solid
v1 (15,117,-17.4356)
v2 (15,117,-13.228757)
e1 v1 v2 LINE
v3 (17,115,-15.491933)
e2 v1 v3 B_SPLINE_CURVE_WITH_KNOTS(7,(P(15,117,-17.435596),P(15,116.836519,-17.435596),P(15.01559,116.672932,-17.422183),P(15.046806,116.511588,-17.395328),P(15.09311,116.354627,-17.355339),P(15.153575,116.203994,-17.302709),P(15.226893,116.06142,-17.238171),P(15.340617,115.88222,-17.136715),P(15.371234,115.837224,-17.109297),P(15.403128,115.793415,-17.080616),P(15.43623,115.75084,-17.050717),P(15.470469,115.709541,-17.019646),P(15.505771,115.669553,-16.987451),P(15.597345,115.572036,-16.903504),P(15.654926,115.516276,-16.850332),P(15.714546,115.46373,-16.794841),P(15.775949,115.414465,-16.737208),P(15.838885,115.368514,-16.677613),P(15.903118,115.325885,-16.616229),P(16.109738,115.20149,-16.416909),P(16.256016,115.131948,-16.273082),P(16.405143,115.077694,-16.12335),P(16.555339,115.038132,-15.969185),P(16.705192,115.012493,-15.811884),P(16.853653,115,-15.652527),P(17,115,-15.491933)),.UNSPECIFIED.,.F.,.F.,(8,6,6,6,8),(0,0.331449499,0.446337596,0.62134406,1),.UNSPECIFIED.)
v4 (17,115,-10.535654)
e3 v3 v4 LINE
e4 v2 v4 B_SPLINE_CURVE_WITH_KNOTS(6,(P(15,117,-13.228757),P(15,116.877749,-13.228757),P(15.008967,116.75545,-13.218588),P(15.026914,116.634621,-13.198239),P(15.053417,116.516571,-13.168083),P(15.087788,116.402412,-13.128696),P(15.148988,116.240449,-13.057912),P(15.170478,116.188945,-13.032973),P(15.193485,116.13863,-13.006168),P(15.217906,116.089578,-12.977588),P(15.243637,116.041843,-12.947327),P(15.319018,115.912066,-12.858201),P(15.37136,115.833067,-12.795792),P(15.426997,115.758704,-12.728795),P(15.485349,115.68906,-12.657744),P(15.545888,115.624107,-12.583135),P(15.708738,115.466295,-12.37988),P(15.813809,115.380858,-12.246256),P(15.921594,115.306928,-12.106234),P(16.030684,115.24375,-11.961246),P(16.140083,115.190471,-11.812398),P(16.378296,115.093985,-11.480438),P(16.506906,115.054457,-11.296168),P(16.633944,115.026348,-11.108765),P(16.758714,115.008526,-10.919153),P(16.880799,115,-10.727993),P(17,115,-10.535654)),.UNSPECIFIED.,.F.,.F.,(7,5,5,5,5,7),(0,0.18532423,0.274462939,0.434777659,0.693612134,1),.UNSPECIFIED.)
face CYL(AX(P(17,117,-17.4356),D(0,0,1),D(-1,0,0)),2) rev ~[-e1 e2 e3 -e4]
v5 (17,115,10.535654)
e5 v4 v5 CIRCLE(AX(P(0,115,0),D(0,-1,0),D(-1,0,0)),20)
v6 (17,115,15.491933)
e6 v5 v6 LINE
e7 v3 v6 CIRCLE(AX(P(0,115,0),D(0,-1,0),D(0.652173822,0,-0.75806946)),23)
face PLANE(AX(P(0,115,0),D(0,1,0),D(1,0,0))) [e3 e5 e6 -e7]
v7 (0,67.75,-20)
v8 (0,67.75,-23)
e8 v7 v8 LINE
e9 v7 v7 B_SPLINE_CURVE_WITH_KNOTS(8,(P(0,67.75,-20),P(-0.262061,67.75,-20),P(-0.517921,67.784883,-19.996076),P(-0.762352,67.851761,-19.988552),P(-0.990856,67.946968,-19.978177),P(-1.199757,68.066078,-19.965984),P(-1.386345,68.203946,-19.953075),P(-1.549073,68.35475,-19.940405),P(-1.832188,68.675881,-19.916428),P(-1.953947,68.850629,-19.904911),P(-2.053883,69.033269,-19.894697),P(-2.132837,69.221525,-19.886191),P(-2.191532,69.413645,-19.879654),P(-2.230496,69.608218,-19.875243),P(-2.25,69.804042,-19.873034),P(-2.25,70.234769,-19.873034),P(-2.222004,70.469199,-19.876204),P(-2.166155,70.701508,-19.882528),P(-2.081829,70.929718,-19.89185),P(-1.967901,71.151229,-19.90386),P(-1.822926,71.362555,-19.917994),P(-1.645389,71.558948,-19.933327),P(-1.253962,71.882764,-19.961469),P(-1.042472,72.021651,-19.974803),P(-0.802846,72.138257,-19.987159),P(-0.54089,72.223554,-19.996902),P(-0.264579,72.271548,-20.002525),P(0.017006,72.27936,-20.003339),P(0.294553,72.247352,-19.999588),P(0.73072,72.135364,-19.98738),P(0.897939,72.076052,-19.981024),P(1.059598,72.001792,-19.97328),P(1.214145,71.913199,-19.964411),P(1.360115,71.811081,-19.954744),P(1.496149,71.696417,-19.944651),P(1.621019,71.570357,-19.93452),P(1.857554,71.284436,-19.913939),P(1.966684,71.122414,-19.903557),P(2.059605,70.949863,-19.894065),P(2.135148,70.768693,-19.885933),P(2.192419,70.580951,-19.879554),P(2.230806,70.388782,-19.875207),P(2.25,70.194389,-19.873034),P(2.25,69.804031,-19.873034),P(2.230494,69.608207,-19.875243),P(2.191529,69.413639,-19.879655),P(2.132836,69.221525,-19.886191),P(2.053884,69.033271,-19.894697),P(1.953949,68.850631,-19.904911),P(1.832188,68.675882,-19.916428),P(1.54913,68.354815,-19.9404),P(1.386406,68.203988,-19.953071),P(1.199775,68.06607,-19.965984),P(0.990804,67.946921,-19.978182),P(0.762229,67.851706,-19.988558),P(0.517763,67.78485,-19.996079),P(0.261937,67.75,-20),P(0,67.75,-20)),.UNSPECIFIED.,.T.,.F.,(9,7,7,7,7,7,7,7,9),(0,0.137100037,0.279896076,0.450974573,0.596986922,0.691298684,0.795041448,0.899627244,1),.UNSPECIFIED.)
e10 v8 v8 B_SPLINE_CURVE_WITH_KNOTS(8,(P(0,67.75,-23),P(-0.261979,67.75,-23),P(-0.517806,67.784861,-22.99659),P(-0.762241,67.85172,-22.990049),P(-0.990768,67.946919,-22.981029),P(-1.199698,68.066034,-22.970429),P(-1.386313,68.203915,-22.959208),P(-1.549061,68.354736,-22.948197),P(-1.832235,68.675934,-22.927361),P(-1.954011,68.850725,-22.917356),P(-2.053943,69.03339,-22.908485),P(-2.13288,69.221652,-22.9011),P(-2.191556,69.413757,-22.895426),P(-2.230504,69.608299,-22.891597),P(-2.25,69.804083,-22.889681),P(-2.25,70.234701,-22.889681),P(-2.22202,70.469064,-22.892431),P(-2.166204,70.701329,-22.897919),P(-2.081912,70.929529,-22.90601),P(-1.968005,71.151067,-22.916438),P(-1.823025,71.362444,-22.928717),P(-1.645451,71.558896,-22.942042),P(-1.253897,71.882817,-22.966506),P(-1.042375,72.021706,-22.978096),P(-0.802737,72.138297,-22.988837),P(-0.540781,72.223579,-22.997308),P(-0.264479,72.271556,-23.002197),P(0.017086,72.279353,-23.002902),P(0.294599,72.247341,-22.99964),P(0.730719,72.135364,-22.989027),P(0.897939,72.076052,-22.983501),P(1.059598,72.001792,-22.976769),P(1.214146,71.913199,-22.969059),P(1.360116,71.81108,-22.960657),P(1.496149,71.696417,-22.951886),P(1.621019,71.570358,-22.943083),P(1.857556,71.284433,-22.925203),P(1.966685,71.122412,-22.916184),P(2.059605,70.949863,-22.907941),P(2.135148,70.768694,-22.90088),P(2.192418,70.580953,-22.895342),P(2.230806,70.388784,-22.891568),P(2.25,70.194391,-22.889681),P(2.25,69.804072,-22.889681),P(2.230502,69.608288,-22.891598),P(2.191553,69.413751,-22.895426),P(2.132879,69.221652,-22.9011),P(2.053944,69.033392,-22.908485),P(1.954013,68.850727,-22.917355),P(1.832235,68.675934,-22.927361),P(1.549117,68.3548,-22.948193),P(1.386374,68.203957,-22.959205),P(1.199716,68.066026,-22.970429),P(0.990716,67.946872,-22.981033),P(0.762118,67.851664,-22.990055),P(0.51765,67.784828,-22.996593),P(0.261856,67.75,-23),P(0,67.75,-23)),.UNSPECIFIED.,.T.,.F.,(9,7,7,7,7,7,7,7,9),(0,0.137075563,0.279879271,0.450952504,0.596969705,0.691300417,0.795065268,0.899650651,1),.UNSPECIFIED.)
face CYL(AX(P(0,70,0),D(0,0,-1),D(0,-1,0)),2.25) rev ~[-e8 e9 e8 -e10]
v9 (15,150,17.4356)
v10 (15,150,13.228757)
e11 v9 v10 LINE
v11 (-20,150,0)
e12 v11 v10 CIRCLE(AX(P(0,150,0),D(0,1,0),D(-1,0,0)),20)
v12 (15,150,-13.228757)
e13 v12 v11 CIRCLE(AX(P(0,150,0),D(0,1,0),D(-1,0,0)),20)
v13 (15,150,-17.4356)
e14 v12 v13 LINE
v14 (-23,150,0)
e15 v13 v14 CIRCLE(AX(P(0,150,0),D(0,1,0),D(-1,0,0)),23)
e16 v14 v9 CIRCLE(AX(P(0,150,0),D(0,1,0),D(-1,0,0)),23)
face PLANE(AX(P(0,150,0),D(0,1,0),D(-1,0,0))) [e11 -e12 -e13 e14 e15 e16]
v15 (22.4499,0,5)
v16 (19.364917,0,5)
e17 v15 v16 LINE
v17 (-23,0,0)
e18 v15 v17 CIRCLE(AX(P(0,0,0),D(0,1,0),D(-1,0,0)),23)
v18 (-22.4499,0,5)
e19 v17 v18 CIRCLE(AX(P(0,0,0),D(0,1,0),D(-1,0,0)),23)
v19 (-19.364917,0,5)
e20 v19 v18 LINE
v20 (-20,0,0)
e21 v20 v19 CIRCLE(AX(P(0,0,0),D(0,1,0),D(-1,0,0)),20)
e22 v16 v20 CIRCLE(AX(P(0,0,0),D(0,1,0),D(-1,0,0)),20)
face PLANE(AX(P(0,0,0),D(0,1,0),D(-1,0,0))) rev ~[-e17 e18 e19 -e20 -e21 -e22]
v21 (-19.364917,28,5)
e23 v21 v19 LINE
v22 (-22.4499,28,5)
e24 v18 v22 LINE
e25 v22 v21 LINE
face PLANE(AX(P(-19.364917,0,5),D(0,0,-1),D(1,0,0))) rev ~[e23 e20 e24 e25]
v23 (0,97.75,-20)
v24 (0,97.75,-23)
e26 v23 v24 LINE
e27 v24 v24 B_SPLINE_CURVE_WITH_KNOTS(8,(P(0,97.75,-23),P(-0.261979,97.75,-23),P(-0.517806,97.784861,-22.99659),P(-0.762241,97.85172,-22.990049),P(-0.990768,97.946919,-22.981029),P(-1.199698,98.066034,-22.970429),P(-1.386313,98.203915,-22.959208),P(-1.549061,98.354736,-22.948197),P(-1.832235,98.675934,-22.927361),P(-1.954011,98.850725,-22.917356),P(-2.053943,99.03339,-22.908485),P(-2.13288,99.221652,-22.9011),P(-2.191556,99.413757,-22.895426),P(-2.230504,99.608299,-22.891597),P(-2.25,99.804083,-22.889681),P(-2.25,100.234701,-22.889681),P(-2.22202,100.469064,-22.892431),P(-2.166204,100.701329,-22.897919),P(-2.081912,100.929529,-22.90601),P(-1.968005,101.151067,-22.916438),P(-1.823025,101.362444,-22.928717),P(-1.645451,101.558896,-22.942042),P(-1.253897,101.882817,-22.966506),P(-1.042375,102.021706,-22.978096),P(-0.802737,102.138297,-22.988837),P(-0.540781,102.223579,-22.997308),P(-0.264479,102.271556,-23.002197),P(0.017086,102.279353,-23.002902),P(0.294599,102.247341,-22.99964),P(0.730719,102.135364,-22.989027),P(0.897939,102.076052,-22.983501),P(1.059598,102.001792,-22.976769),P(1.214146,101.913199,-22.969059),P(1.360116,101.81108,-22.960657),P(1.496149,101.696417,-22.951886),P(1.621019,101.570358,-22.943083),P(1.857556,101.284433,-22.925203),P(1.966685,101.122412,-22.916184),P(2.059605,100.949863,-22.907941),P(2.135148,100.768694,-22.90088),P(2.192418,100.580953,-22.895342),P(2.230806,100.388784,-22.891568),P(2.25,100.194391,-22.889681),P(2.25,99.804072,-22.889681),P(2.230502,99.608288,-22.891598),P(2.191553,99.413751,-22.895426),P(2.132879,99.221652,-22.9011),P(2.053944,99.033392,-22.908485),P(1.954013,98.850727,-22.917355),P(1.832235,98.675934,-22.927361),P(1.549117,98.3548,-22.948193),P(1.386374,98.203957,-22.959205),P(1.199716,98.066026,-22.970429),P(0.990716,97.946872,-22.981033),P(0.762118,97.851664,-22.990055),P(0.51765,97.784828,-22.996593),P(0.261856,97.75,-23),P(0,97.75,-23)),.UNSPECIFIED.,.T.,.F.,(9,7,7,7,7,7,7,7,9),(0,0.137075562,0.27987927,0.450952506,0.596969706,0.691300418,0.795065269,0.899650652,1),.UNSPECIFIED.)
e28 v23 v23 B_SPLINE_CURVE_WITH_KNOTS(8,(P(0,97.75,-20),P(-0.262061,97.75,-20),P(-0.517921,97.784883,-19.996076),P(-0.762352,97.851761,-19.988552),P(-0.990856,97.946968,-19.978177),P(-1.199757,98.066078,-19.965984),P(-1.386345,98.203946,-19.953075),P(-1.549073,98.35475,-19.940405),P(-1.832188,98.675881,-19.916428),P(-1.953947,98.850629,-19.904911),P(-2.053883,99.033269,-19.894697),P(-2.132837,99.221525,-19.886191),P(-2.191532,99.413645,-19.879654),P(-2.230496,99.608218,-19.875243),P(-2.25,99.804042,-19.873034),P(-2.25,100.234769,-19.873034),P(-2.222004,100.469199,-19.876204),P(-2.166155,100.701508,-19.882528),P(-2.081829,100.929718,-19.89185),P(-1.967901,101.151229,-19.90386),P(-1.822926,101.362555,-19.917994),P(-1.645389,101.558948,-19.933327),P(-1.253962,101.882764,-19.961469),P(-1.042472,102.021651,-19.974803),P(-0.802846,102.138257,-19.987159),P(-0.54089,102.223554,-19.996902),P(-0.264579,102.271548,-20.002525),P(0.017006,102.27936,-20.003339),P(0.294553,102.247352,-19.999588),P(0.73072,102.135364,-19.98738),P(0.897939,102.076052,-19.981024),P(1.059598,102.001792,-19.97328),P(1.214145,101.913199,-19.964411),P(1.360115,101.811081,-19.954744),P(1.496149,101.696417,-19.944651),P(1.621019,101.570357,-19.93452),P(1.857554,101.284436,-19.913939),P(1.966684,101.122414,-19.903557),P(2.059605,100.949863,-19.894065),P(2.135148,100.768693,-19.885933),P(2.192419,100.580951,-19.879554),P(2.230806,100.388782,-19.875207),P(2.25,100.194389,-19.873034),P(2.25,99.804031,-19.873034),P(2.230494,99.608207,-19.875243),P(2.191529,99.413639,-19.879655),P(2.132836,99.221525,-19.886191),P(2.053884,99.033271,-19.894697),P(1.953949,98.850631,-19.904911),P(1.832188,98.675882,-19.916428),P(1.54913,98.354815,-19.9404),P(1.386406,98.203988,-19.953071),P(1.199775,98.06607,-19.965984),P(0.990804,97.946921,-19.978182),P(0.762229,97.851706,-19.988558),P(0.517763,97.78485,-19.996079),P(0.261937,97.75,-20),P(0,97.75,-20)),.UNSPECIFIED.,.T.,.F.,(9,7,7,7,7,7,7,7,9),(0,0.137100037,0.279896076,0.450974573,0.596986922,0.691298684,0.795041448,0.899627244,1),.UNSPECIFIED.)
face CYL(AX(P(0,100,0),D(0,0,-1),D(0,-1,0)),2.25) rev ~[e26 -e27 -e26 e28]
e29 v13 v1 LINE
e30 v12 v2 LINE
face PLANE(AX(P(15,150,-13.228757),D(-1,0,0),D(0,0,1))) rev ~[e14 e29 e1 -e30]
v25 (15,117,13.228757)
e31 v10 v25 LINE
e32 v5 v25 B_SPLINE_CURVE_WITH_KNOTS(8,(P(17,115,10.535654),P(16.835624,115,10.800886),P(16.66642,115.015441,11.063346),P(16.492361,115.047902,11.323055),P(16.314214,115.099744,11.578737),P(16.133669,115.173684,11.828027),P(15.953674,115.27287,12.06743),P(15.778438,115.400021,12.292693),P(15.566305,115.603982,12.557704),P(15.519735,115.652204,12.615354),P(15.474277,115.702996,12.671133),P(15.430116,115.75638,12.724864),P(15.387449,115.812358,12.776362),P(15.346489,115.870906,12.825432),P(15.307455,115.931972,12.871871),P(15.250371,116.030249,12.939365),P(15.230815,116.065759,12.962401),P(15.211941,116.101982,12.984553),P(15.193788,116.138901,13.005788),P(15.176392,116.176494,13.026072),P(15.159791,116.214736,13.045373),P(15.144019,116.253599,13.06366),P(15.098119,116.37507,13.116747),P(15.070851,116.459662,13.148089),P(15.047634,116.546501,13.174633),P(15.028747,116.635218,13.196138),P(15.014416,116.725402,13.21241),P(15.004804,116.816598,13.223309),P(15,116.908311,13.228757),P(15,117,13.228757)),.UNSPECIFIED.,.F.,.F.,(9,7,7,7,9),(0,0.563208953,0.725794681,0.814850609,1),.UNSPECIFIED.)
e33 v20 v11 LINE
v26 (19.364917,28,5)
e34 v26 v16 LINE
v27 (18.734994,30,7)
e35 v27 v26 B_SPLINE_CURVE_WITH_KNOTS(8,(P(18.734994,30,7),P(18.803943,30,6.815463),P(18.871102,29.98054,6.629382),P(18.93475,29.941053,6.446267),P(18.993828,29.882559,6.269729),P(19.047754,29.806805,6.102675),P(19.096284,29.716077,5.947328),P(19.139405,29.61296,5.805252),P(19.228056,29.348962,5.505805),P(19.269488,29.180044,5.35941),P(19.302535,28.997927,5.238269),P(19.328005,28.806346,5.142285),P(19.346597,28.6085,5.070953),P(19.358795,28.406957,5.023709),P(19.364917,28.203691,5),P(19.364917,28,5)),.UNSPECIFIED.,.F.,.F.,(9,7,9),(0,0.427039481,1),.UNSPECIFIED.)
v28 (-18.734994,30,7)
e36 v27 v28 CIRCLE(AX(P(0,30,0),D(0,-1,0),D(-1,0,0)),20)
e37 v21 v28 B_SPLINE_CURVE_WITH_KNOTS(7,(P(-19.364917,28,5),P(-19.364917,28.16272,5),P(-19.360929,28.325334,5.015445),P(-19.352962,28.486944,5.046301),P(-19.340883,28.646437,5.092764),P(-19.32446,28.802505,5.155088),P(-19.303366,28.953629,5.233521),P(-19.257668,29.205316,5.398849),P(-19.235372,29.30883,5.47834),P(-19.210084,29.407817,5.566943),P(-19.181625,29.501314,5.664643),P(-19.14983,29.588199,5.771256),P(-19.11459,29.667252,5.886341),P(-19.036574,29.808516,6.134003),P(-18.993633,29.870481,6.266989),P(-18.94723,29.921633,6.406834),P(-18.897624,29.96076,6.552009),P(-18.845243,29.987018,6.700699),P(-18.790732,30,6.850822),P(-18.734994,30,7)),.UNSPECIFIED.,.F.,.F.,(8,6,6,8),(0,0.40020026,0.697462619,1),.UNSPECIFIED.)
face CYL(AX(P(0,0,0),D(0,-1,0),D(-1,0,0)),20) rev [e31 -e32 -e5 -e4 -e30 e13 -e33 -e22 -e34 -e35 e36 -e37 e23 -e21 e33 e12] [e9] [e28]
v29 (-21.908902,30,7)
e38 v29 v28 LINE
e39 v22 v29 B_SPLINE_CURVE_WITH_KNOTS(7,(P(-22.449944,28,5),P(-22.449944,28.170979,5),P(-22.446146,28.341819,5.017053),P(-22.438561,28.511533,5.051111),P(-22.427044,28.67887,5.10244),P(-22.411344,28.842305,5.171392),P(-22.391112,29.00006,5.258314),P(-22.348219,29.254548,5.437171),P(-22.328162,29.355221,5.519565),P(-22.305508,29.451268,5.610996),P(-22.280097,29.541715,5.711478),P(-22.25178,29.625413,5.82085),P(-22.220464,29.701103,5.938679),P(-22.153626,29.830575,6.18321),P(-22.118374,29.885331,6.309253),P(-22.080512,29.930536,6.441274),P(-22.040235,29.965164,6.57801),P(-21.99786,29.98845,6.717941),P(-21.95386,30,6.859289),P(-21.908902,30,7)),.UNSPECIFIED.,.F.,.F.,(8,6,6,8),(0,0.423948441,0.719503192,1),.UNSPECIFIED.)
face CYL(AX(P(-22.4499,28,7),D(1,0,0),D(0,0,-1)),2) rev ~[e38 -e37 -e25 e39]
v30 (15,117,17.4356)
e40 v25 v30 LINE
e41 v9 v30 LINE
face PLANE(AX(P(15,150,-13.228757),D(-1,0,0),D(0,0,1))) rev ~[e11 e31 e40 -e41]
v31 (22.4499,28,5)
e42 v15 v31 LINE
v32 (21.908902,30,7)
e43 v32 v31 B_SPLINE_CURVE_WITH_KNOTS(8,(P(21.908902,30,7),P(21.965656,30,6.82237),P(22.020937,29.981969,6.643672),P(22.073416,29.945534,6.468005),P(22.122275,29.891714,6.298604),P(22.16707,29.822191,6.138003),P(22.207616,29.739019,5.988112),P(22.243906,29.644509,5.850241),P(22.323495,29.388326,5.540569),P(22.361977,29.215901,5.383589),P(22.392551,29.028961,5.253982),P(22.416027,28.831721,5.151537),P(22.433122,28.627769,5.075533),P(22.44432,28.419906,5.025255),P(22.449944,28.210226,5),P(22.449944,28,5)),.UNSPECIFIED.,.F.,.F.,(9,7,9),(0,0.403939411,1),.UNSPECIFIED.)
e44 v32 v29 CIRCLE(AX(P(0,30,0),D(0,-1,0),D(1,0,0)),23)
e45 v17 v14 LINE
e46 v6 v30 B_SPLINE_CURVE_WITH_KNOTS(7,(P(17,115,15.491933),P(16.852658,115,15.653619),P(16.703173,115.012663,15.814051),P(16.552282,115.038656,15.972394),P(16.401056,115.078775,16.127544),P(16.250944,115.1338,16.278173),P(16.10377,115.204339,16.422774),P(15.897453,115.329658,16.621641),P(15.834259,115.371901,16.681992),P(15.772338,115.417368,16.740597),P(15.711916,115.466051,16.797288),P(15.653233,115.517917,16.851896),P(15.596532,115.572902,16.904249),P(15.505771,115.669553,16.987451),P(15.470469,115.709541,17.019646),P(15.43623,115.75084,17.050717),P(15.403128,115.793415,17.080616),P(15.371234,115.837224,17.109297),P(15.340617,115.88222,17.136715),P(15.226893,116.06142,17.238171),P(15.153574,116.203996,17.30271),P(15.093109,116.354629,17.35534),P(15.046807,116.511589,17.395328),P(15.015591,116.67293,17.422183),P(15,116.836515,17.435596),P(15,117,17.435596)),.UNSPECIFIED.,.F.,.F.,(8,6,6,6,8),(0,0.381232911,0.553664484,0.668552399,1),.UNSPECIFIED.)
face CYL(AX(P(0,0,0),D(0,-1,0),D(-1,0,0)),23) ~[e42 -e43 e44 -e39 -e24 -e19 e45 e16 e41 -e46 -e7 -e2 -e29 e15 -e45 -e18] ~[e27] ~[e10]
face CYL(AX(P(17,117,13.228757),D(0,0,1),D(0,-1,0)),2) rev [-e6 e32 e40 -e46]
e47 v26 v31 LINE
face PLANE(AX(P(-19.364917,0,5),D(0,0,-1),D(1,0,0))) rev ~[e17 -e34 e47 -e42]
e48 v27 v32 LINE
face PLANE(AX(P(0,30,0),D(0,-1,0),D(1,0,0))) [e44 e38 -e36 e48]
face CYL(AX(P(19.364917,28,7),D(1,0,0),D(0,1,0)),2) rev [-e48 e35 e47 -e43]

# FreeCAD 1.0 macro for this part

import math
import FreeCAD as App
import Part
import Sketcher
from FreeCAD import Vector
Q = App.Units.Quantity


def edges_at(feature, points):
    """Names of the edges that pass closest to the given points."""
    edges = feature.Shape.Edges
    near = lambda p: min(range(len(edges)), key=lambda i: edges[i].distToShape(Part.Vertex(*p))[0])
    return sorted({f"Edge{near(p) + 1}" for p in points})

doc = App.newDocument("Part")
body = doc.addObject("PartDesign::Body", "Body")

# Sketch on XZ plane
sketch1 = body.newObject("Sketcher::SketchObject", "Sketch")
sketch1.AttachmentSupport = (doc.getObject("XZ_Plane"), [""])
sketch1.MapMode = "FlatFace"
sketch1.addGeometry([
    Part.Circle(Vector(0, 0, 0), Vector(0, 0, 1), 23),
    Part.Circle(Vector(0, 0, 0), Vector(0, 0, 1), 20),
], False)
sketch1.addConstraint([
    Sketcher.Constraint("Coincident", 0, 3, -1, 1),
    Sketcher.Constraint("Coincident", 1, 3, -1, 1),
    Sketcher.Constraint("Diameter", 1, Q("40 mm")),
    Sketcher.Constraint("Diameter", 0, Q("46 mm")),
])
pad1 = body.newObject("PartDesign::Pad", "Pad")
pad1.Profile = sketch1
pad1.Length = 150
pad1.Reversed = True

# Sketch on XY plane
sketch2 = body.newObject("Sketcher::SketchObject", "Sketch001")
sketch2.AttachmentSupport = (doc.getObject("XY_Plane"), [""])
sketch2.MapMode = "FlatFace"
sketch2.addGeometry([
    Part.Circle(Vector(0, 100, 0), Vector(0, 0, 1), 2.25),
    Part.Circle(Vector(0, 70, 0), Vector(0, 0, 1), 2.25),
], False)
sketch2.addConstraint([
    Sketcher.Constraint("Equal", 0, 1),
    Sketcher.Constraint("PointOnObject", 0, 3, -2),
    Sketcher.Constraint("PointOnObject", 1, 3, -2),
    Sketcher.Constraint("Diameter", 0, Q("4.5 mm")),
    Sketcher.Constraint("DistanceY", -1, 1, 0, 3, Q("100 mm")),
    Sketcher.Constraint("DistanceY", -1, 1, 1, 3, Q("70 mm")),
])
doc.recompute()
hole = body.newObject("PartDesign::Hole", "Hole")
hole.Profile = sketch2
hole.ThreadType = "None"
hole.Diameter = 4.5
hole.DepthType = "ThroughAll"

# Sketch on XZ plane
sketch3 = body.newObject("Sketcher::SketchObject", "Sketch002")
sketch3.AttachmentSupport = (doc.getObject("XZ_Plane"), [""])
sketch3.MapMode = "FlatFace"
sketch3.AttachmentOffset = App.Placement(Vector(0, 0, -150), App.Rotation())
sketch3.addGeometry([
    Part.ArcOfCircle(Part.Circle(Vector(0, 0, 0), Vector(0, 0, 1), 23), math.radians(-49.2943), math.radians(49.2943)),
    Part.LineSegment(Vector(15, 17.4356, 0), Vector(15, -17.4356, 0)),
], False)
sketch3.addConstraint([
    Sketcher.Constraint("Coincident", 0, 1, 1, 2),
    Sketcher.Constraint("Coincident", 1, 1, 0, 2),
    Sketcher.Constraint("Vertical", 1),
    Sketcher.Constraint("Coincident", 0, 3, -1, 1),
    Sketcher.Constraint("DistanceX", -1, 1, 0, 1, Q("15 mm")),
    Sketcher.Constraint("Radius", 0, Q("23 mm")),
])
pocket1 = body.newObject("PartDesign::Pocket", "Pocket")
pocket1.Profile = sketch3
pocket1.Length = 35
pocket1.Reversed = True
doc.recompute()

fillet = body.newObject("PartDesign::Fillet", "Fillet")
fillet.Base = (pocket1, edges_at(pocket1, [(15, 115, -15.332), (15, 115, 15.332)]))
fillet.Radius = 2

# Sketch on XZ plane
sketch4 = body.newObject("Sketcher::SketchObject", "Sketch003")
sketch4.AttachmentSupport = (doc.getObject("XZ_Plane"), [""])
sketch4.MapMode = "FlatFace"
sketch4.addGeometry([
    Part.ArcOfCircle(Part.Circle(Vector(0, 0, 0), Vector(0, 0, 1), 23), math.radians(12.555882), math.radians(167.444118)),
    Part.LineSegment(Vector(22.4499, 5, 0), Vector(-22.4499, 5, 0)),
], False)
sketch4.addConstraint([
    Sketcher.Constraint("Coincident", 0, 1, 1, 1),
    Sketcher.Constraint("Coincident", 1, 2, 0, 2),
    Sketcher.Constraint("Horizontal", 1),
    Sketcher.Constraint("Coincident", 0, 3, -1, 1),
    Sketcher.Constraint("DistanceY", -1, 1, 0, 1, Q("5 mm")),
    Sketcher.Constraint("Radius", 0, Q("23 mm")),
])
pocket2 = body.newObject("PartDesign::Pocket", "Pocket001")
pocket2.Profile = sketch4
pocket2.Length = 30
doc.recompute()

fillet2 = body.newObject("PartDesign::Fillet", "Fillet001")
fillet2.Base = (pocket2, edges_at(pocket2, [(-20.907, 30, 5), (20.907, 30, 5)]))
fillet2.Radius = 2

doc.recompute()
